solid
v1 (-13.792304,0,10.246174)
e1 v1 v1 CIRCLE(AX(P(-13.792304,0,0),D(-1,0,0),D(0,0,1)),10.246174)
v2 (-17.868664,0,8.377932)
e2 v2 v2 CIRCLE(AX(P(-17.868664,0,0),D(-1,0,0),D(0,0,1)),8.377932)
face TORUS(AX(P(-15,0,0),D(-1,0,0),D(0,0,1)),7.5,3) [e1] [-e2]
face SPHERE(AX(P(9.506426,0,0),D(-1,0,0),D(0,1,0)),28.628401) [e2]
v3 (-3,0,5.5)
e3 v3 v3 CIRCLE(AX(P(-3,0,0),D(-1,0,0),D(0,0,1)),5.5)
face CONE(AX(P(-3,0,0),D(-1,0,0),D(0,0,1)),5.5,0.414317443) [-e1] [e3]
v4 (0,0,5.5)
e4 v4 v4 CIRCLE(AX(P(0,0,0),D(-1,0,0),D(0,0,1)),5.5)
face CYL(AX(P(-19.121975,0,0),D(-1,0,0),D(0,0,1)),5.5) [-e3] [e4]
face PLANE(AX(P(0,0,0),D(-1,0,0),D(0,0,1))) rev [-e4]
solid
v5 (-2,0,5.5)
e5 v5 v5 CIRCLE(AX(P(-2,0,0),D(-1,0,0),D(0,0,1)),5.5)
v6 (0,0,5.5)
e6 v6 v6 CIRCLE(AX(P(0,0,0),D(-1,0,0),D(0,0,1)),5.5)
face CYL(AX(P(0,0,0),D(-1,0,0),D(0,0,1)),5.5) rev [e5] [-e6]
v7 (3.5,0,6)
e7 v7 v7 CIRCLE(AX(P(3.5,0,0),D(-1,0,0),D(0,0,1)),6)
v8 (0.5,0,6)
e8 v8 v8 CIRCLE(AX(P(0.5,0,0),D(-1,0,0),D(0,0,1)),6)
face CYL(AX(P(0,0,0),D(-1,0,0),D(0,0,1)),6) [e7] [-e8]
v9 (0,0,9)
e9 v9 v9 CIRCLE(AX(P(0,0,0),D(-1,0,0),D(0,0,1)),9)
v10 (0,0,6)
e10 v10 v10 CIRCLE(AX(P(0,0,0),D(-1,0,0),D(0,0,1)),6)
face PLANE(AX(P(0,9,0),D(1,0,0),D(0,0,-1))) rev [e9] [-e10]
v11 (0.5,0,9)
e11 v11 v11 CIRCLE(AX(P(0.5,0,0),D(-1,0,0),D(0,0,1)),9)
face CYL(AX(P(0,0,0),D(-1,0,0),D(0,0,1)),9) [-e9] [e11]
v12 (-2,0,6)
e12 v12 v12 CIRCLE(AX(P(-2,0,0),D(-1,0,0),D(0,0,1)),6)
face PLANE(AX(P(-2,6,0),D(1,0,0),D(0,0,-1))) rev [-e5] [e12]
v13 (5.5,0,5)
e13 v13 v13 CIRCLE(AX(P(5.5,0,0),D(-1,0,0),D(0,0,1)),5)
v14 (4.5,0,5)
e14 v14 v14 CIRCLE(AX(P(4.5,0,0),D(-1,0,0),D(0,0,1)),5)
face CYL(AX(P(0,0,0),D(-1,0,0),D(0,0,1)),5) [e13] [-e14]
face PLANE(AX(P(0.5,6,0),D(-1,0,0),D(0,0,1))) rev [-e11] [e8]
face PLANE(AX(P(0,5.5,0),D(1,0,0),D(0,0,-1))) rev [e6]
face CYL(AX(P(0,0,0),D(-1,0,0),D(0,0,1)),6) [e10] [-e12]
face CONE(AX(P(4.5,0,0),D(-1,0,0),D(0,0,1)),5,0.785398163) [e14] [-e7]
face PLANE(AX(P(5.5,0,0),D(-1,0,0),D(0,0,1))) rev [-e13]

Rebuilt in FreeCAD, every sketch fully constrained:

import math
import FreeCAD as App
import Part
import Sketcher
Q = App.Units.Quantity


def add_polygon(sketch, points):
    """Adds a closed chain of lines whose ends are joined by coincident constraints."""
    first, n = sketch.GeometryCount, len(points)
    for a, b in zip(points, points[1:] + points[:1]):
        sketch.addGeometry(Part.LineSegment(App.Vector(*a, 0), App.Vector(*b, 0)), False)
    for i in range(n):
        sketch.addConstraint(Sketcher.Constraint("Coincident", first + i, 2, first + (i + 1) % n, 1))

doc = App.newDocument("Part")
body = doc.addObject("PartDesign::Body", "Body")

# Sketch on XY plane
sketch1 = doc.addObject("Sketcher::SketchObject", "Sketch")
body.addObject(sketch1)
sketch1.AttachmentSupport = (doc.XY_Plane, [""])
sketch1.MapMode = "FlatFace"
add_polygon(sketch1, [(0, 0), (5.5, 0), (5.5, 5), (4.5, 5), (3.5, 6), (0.5, 6), (0.5, 9), (0, 9), (0, 6), (-2, 6), (-2, 5.5), (0, 5.5)])  # lines 0-11
sketch1.addConstraint([
    Sketcher.Constraint("Horizontal", 0),
    Sketcher.Constraint("Vertical", 1),
    Sketcher.Constraint("Horizontal", 2),
    Sketcher.Constraint("Horizontal", 4),
    Sketcher.Constraint("Vertical", 5),
    Sketcher.Constraint("Horizontal", 6),
    Sketcher.Constraint("Vertical", 7),
    Sketcher.Constraint("Horizontal", 8),
    Sketcher.Constraint("Vertical", 9),
    Sketcher.Constraint("Horizontal", 10),
    Sketcher.Constraint("Vertical", 11),
    Sketcher.Constraint("Coincident", 11, 2, -1, 1),
    Sketcher.Constraint("PointOnObject", 6, 2, -2),
    Sketcher.Constraint("Horizontal", 4, 2, 7, 2),
    Sketcher.Constraint("Equal", 4, 5),
    Sketcher.Constraint("Equal", 6, 9),
    Sketcher.Constraint("Equal", 0, 11),
    Sketcher.Constraint("DistanceX", 2, 2, 2, 1, Q("1 mm")),
    Sketcher.Constraint("DistanceX", 4, 2, 4, 1, Q("3 mm")),
    Sketcher.Constraint("DistanceX", 8, 2, 8, 1, Q("2 mm")),
    Sketcher.Constraint("DistanceY", 1, 1, 1, 2, Q("5 mm")),
    Sketcher.Constraint("Angle", 3, Q("135 deg")),
    Sketcher.Constraint("DistanceX", 0, 1, 0, 2, Q("5.5 mm")),
])
revolution = doc.addObject("PartDesign::Revolution", "Revolution")
body.addObject(revolution)
revolution.Profile = sketch1
revolution.ReferenceAxis = (sketch1, ["H_Axis"])
revolution.Angle = 360
body2 = doc.addObject("PartDesign::Body", "Body001")

# Sketch on XY plane
sketch2 = doc.addObject("Sketcher::SketchObject", "Sketch001")
body2.addObject(sketch2)
sketch2.AttachmentSupport = (doc.getObject("XY_Plane001"), [""])
sketch2.MapMode = "FlatFace"
sketch2.addGeometry([
    Part.LineSegment(App.Vector(0, 5.5, 0), App.Vector(-3, 5.5, 0)),  # 0
    Part.LineSegment(App.Vector(-3, 5.5, 0), App.Vector(-13.8, 10.2, 0)),  # 1
    Part.ArcOfCircle(Part.Circle(App.Vector(-15, 7.5, 0), App.Vector(0, 0, 1), 3), math.radians(66), math.radians(163)),  # 2
    Part.ArcOfCircle(Part.Circle(App.Vector(9.5, 0, 0), App.Vector(0, 0, 1), 28.6), math.radians(162.98), math.radians(180)),  # 3
    Part.LineSegment(App.Vector(-19.1, 0, 0), App.Vector(0, 0, 0)),  # 4
    Part.LineSegment(App.Vector(0, 0, 0), App.Vector(0, 5.5, 0)),  # 5
], False)
sketch2.addConstraint([
    Sketcher.Constraint("Coincident", 0, 2, 1, 1),
    Sketcher.Constraint("Tangent", 1, 2, 2, 1),
    Sketcher.Constraint("Tangent", 2, 2, 3, 1),
    Sketcher.Constraint("Coincident", 3, 2, 4, 1),
    Sketcher.Constraint("Coincident", 4, 2, 5, 1),
    Sketcher.Constraint("Coincident", 5, 2, 0, 1),
    Sketcher.Constraint("Horizontal", 0),
    Sketcher.Constraint("Horizontal", 4),
    Sketcher.Constraint("Vertical", 5),
    Sketcher.Constraint("Coincident", 4, 2, -1, 1),
    Sketcher.Constraint("PointOnObject", 3, 3, -1),
    Sketcher.Constraint("Radius", 2, Q("3 mm")),
    Sketcher.Constraint("DistanceX", 0, 2, 0, 1, Q("3 mm")),
    Sketcher.Constraint("DistanceY", 5, 1, 5, 2, Q("5.5 mm")),
    Sketcher.Constraint("DistanceX", 2, 3, -1, 1, Q("15 mm")),
    Sketcher.Constraint("DistanceY", 0, 2, 2, 3, Q("2 mm")),
    Sketcher.Constraint("Radius", 3, Q("28.628401 mm")),
])
revolution2 = doc.addObject("PartDesign::Revolution", "Revolution001")
body2.addObject(revolution2)
revolution2.Profile = sketch2
revolution2.ReferenceAxis = (sketch2, ["H_Axis"])
revolution2.Angle = 360

doc.recompute()
